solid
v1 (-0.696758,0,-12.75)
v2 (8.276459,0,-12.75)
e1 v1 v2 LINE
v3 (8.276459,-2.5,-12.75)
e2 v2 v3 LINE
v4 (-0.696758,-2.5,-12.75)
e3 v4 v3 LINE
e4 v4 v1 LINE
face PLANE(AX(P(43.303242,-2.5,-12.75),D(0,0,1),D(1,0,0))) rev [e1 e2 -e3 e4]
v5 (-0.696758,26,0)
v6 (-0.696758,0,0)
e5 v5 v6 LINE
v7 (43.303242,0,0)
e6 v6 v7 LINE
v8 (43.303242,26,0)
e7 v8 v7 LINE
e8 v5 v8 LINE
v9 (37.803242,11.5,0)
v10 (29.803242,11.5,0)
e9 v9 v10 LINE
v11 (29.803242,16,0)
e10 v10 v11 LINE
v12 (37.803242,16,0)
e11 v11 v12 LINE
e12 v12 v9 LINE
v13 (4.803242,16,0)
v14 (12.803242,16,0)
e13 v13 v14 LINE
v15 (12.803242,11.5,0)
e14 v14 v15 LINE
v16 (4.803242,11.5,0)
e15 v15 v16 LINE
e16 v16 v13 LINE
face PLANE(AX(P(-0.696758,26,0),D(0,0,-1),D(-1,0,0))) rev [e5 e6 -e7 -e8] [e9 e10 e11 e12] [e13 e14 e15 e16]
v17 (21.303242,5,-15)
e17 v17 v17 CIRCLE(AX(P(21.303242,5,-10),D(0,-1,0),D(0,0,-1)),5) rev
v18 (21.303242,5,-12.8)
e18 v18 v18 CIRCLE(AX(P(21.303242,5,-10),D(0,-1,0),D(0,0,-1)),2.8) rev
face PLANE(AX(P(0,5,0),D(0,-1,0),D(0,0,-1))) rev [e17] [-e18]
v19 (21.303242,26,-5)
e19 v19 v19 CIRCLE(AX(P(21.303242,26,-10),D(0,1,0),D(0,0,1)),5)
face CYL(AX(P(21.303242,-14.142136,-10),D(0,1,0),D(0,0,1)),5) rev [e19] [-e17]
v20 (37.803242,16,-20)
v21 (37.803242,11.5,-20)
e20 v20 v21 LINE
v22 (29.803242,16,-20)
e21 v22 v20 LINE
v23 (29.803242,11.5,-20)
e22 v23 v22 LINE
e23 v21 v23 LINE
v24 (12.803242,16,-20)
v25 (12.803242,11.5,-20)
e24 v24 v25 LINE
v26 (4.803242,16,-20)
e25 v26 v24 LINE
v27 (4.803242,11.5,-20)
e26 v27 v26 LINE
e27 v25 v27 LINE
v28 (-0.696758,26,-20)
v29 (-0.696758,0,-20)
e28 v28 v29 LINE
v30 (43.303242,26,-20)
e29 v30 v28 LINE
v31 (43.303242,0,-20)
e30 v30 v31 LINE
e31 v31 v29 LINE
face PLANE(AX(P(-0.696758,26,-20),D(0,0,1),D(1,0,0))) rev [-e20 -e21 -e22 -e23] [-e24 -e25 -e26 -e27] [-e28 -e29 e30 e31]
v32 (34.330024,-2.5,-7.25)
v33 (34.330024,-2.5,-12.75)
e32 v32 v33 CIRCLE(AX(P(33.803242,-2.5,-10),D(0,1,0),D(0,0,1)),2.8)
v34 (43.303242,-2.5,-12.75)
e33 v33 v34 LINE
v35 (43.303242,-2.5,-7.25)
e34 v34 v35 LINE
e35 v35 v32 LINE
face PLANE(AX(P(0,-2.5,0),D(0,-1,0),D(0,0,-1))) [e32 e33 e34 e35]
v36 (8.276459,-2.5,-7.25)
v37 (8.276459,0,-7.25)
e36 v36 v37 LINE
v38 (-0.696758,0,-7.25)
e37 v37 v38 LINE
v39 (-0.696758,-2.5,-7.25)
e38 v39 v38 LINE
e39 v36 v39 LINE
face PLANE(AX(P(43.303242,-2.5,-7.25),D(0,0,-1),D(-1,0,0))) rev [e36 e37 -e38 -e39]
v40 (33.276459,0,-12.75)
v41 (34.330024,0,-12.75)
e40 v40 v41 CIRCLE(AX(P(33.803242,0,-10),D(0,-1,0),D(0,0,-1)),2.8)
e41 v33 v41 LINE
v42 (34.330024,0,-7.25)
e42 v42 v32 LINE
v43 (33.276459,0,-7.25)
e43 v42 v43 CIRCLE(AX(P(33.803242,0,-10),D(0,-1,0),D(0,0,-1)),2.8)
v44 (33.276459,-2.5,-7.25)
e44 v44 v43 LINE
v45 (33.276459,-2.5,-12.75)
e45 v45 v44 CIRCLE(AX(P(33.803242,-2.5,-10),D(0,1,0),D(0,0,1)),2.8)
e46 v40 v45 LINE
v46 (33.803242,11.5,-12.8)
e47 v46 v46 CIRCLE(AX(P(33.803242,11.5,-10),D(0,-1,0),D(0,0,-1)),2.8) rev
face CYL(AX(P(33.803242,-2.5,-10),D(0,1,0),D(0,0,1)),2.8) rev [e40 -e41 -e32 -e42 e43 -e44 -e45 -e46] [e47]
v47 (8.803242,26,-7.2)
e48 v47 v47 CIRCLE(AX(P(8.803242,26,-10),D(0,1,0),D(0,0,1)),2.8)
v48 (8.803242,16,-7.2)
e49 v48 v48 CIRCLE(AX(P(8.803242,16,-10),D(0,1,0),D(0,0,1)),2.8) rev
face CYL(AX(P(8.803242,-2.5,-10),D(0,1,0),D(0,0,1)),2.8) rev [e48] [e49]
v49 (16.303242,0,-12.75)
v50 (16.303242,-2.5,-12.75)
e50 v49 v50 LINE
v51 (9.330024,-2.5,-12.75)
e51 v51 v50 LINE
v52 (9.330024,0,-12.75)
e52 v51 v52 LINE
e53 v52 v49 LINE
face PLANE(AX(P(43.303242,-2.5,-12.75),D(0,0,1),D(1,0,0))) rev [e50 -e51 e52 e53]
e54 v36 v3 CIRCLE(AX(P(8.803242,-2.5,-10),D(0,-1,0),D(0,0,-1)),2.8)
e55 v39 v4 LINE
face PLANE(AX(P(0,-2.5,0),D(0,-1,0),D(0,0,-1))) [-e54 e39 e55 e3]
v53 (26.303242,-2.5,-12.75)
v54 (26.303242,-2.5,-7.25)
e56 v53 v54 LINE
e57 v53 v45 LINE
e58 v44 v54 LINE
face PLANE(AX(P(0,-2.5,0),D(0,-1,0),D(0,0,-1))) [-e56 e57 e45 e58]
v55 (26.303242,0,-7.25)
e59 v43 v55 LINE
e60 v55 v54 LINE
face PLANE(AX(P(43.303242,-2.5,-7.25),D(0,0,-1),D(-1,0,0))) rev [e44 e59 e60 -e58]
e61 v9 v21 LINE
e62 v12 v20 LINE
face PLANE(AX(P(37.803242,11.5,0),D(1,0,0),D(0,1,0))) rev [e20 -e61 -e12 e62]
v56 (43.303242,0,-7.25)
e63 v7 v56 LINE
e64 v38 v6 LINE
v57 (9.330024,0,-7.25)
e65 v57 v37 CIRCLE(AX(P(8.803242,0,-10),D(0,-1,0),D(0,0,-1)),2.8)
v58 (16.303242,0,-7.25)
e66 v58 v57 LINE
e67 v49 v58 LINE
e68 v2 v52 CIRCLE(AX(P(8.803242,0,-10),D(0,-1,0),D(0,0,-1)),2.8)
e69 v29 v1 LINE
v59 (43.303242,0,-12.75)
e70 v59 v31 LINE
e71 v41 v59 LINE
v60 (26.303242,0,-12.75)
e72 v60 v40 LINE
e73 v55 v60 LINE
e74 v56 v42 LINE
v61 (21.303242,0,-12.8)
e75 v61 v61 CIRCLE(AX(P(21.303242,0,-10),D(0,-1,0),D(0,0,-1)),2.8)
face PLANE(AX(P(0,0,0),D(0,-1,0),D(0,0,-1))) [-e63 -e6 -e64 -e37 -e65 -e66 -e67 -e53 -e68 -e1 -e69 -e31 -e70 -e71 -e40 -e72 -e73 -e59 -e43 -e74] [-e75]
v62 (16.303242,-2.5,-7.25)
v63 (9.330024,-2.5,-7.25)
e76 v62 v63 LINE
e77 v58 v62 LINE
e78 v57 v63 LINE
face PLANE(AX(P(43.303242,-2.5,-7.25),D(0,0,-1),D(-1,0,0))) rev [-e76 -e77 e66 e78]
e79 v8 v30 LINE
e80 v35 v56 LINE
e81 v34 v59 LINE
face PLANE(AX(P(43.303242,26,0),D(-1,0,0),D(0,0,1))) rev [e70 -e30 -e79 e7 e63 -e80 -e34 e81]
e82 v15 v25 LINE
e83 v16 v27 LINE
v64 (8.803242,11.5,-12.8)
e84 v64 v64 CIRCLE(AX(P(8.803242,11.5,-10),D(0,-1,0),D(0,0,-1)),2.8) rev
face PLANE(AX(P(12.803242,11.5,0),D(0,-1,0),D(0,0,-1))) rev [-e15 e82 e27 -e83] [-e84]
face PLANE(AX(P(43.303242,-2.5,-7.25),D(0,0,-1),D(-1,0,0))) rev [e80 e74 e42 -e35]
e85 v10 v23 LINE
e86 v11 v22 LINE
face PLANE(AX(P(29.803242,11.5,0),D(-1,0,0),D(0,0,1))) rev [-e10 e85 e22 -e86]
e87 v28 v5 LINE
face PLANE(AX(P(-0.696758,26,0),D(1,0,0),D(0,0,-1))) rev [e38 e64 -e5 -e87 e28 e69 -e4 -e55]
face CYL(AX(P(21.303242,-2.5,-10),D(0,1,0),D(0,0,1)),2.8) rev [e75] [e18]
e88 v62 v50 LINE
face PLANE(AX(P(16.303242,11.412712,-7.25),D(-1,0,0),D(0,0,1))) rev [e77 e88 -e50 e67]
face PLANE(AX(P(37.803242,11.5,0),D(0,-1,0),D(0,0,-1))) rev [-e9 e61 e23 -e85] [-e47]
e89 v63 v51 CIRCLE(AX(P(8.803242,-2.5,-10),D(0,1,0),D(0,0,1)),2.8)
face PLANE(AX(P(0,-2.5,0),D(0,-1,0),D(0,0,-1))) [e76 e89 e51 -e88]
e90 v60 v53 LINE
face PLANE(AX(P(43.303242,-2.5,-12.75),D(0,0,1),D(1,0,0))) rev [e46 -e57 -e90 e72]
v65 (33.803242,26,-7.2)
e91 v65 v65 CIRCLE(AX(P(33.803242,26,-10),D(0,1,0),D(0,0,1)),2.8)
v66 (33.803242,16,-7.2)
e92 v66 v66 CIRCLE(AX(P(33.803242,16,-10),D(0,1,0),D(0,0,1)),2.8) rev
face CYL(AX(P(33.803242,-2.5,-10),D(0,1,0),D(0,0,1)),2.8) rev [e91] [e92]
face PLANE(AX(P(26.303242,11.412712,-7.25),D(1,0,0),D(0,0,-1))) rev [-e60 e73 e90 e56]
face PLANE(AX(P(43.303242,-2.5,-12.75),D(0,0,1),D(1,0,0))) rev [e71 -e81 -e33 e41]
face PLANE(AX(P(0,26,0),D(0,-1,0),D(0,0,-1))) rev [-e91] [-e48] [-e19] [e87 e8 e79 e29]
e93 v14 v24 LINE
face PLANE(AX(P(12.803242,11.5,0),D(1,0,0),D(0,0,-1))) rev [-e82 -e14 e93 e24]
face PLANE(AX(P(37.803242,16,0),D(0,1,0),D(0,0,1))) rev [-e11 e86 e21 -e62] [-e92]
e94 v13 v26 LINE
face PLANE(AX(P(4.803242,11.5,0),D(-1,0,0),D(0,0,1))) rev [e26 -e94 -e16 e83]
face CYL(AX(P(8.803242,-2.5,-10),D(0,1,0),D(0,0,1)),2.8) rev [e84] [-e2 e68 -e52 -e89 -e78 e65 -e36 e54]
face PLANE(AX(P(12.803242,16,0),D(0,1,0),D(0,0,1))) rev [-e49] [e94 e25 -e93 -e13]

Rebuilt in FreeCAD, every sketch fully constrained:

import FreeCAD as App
import Part
import Sketcher

V = App.Vector


def add_polygon(sketch, points):
    """Adds a closed chain of lines whose ends are joined by coincident constraints."""
    first, n = sketch.GeometryCount, len(points)
    for a, b in zip(points, points[1:] + points[:1]):
        sketch.addGeometry(Part.LineSegment(App.Vector(*a, 0), App.Vector(*b, 0)), False)
    for i in range(n):
        sketch.addConstraint(Sketcher.Constraint("Coincident", first + i, 2, first + (i + 1) % n, 1))

doc = App.newDocument("Part")
body = doc.addObject("PartDesign::Body", "Body")

sketch1 = doc.addObject("Sketcher::SketchObject", "Sketch")
body.addObject(sketch1)
sketch1.AttachmentSupport = (doc.XZ_Plane, [""])
sketch1.MapMode = "FlatFace"
add_polygon(sketch1, [(-1, -20), (-1, 0), (43, 0), (43, -20)])
sketch1.addConstraint([
    Sketcher.Constraint("Vertical", 0),
    Sketcher.Constraint("Horizontal", 1),
    Sketcher.Constraint("Vertical", 2),
    Sketcher.Constraint("Horizontal", 3),
    Sketcher.Constraint("PointOnObject", 0, 2, -1),
    Sketcher.Constraint("DistanceX", 1, 1, 1, 2, 44.0),
    Sketcher.Constraint("DistanceY", 0, 1, 0, 2, 20.0),
    Sketcher.Constraint("DistanceX", 0, 2, -1, 1, 0.696758),
])
pad1 = doc.addObject("PartDesign::Pad", "Pad")
body.addObject(pad1)
pad1.Profile = sketch1
pad1.Length = 26
pad1.Reversed = True

sketch2 = doc.addObject("Sketcher::SketchObject", "Sketch001")
body.addObject(sketch2)
sketch2.AttachmentSupport = (doc.XZ_Plane, [""])
sketch2.MapMode = "FlatFace"
add_polygon(sketch2, [(-1, -7), (-1, -13), (43, -13), (43, -7)])
sketch2.addConstraint([
    Sketcher.Constraint("Vertical", 0),
    Sketcher.Constraint("Horizontal", 1),
    Sketcher.Constraint("Vertical", 2),
    Sketcher.Constraint("Horizontal", 3),
    Sketcher.Constraint("DistanceX", 1, 1, 1, 2, 44.0),
    Sketcher.Constraint("DistanceY", 0, 2, 0, 1, 5.5),
    Sketcher.Constraint("DistanceY", 0, 2, -1, 1, 12.75),
    Sketcher.Constraint("DistanceX", 0, 2, -1, 1, 0.696758),
])
pad2 = doc.addObject("PartDesign::Pad", "Pad001")
body.addObject(pad2)
pad2.Profile = sketch2
pad2.Length = 2.5

sketch3 = doc.addObject("Sketcher::SketchObject", "Sketch002")
body.addObject(sketch3)
sketch3.AttachmentSupport = (doc.XZ_Plane, [""])
sketch3.MapMode = "FlatFace"
sketch3.AttachmentOffset = App.Placement(V(0, 0, -26), App.Rotation())
sketch3.addGeometry([
    Part.Circle(V(8.8, -10, 0), V(0, 0, 1), 2.8),
    Part.Circle(V(33.8, -10, 0), V(0, 0, 1), 2.8),
    Part.Circle(V(21.3, -10, 0), V(0, 0, 1), 2.8),
], False)
sketch3.addConstraint([
    Sketcher.Constraint("Equal", 0, 1),
    Sketcher.Constraint("Equal", 1, 2),
    Sketcher.Constraint("Horizontal", 0, 3, 1, 3),
    Sketcher.Constraint("Horizontal", 1, 3, 2, 3),
    Sketcher.Constraint("Diameter", 0, 5.6),
    Sketcher.Constraint("DistanceY", 0, 3, -1, 1, 10.0),
    Sketcher.Constraint("DistanceX", 0, 3, 1, 3, 25.0),
    Sketcher.Constraint("DistanceX", 0, 3, 2, 3, 12.5),
    Sketcher.Constraint("DistanceX", -1, 1, 0, 3, 8.803242),
])
pocket1 = doc.addObject("PartDesign::Pocket", "Pocket")
body.addObject(pocket1)
pocket1.Profile = sketch3
pocket1.Type = "ThroughAll"
pocket1.Reversed = True

sketch4 = doc.addObject("Sketcher::SketchObject", "Sketch003")
body.addObject(sketch4)
sketch4.AttachmentSupport = (doc.XZ_Plane, [""])
sketch4.MapMode = "FlatFace"
sketch4.AttachmentOffset = App.Placement(V(0, 0, -26), App.Rotation())
sketch4.addGeometry(Part.Circle(V(21, -10, 0), V(0, 0, 1), 5), False)
sketch4.addConstraint([
    Sketcher.Constraint("Diameter", 0, 10.0),
    Sketcher.Constraint("DistanceY", 0, 3, -1, 1, 10.0),
    Sketcher.Constraint("DistanceX", -1, 1, 0, 3, 21.303242),
])
pocket2 = doc.addObject("PartDesign::Pocket", "Pocket001")
body.addObject(pocket2)
pocket2.Profile = sketch4
pocket2.Length = 21
pocket2.Reversed = True

sketch5 = doc.addObject("Sketcher::SketchObject", "Sketch004")
body.addObject(sketch5)
sketch5.AttachmentSupport = (doc.XY_Plane, [""])
sketch5.MapMode = "FlatFace"
sketch5.AttachmentOffset = App.Placement(V(0, 0, -20), App.Rotation())
add_polygon(sketch5, [(37.8, 16), (37.8, 11.5), (29.8, 11.5), (29.8, 16)])
add_polygon(sketch5, [(12.8, 16), (12.8, 11.5), (4.8, 11.5), (4.8, 16)])
sketch5.addConstraint([
    Sketcher.Constraint("Vertical", 0),
    Sketcher.Constraint("Horizontal", 1),
    Sketcher.Constraint("Vertical", 2),
    Sketcher.Constraint("Horizontal", 3),
    Sketcher.Constraint("Vertical", 4),
    Sketcher.Constraint("Horizontal", 5),
    Sketcher.Constraint("Vertical", 6),
    Sketcher.Constraint("Horizontal", 7),
    Sketcher.Constraint("Horizontal", 1, 2, 4, 2),
    Sketcher.Constraint("Horizontal", 3, 2, 6, 2),
    Sketcher.Constraint("Equal", 3, 5),
    Sketcher.Constraint("DistanceX", 1, 2, 1, 1, 8.0),
    Sketcher.Constraint("DistanceY", 0, 2, 0, 1, 4.5),
    Sketcher.Constraint("DistanceY", -1, 1, 2, 2, 16.0),
    Sketcher.Constraint("DistanceX", 4, 2, 1, 2, 17.0),
    Sketcher.Constraint("DistanceX", -1, 1, 0, 2, 37.803242),
])
pocket3 = doc.addObject("PartDesign::Pocket", "Pocket002")
body.addObject(pocket3)
pocket3.Profile = sketch5
pocket3.Type = "ThroughAll"
pocket3.Reversed = True

sketch6 = doc.addObject("Sketcher::SketchObject", "Sketch005")
body.addObject(sketch6)
sketch6.AttachmentSupport = (doc.XZ_Plane, [""])
sketch6.MapMode = "FlatFace"
sketch6.AttachmentOffset = App.Placement(V(0, 0, 2.5), App.Rotation())
add_polygon(sketch6, [(16, -7), (16, -13), (26, -13), (26, -7)])
sketch6.addConstraint([
    Sketcher.Constraint("Vertical", 0),
    Sketcher.Constraint("Horizontal", 1),
    Sketcher.Constraint("Vertical", 2),
    Sketcher.Constraint("Horizontal", 3),
    Sketcher.Constraint("DistanceX", 1, 1, 1, 2, 10.0),
    Sketcher.Constraint("DistanceY", 0, 2, 0, 1, 5.5),
    Sketcher.Constraint("DistanceY", 0, 2, -1, 1, 12.75),
    Sketcher.Constraint("DistanceX", -1, 1, 0, 2, 16.303242),
])
pocket4 = doc.addObject("PartDesign::Pocket", "Pocket003")
body.addObject(pocket4)
pocket4.Profile = sketch6
pocket4.Length = 2.5

doc.recompute()
